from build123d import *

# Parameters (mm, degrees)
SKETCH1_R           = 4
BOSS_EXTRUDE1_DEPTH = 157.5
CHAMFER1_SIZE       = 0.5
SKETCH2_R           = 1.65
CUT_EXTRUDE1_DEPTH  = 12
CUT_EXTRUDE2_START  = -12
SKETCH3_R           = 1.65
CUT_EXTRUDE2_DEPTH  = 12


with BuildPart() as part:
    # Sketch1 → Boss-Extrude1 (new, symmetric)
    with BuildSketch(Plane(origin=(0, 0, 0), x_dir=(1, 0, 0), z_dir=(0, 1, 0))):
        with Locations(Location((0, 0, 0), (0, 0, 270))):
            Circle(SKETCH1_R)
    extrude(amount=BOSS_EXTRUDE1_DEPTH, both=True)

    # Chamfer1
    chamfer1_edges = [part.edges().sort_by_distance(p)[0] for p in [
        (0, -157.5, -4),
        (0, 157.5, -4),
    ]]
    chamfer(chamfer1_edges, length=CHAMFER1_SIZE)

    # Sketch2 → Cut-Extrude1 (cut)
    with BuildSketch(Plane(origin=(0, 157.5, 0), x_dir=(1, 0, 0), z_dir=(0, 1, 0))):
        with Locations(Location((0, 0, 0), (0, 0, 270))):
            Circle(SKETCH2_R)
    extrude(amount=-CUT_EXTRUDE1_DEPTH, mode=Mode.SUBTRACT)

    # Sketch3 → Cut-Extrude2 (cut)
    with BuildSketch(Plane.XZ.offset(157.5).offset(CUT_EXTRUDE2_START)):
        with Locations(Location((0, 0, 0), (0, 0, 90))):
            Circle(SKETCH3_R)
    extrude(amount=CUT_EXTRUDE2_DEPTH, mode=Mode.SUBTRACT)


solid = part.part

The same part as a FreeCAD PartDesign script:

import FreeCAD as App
import Part
import Sketcher

V = App.Vector


def edges_at(feature, points):
    """Names of the edges that pass closest to the given points."""
    edges = feature.Shape.Edges
    near = lambda p: min(range(len(edges)), key=lambda i: edges[i].distToShape(Part.Vertex(*p))[0])
    return sorted({f"Edge{near(p) + 1}" for p in points})

doc = App.newDocument("Part")
body = doc.addObject("PartDesign::Body", "Body")

# Sketch on XZ plane
sketch1 = body.newObject("Sketcher::SketchObject", "Sketch")
sketch1.AttachmentSupport = (doc.getObject("XZ_Plane"), [""])
sketch1.MapMode = "FlatFace"
sketch1.addGeometry(Part.Circle(V(0, 0, 0), V(0, 0, 1), 4), False)
sketch1.addConstraint([
    Sketcher.Constraint("Coincident", 0, 3, -1, 1),
    Sketcher.Constraint("Diameter", 0, 8.0),
])
pad1 = body.newObject("PartDesign::Pad", "Pad")
pad1.Profile = sketch1
pad1.Length = 315
pad1.Midplane = True
doc.recompute()

chamfer = body.newObject("PartDesign::Chamfer", "Chamfer")
chamfer.Base = (pad1, edges_at(pad1, [(0, -157.5, -4), (0, 157.5, -4)]))
chamfer.Size = 0.5

# Sketch on XZ plane
sketch2 = body.newObject("Sketcher::SketchObject", "Sketch001")
sketch2.AttachmentSupport = (doc.getObject("XZ_Plane"), [""])
sketch2.MapMode = "FlatFace"
sketch2.AttachmentOffset = App.Placement(V(0, 0, -157.5), App.Rotation())
sketch2.addGeometry(Part.Circle(V(0, 0, 0), V(0, 0, 1), 1.6), False)
sketch2.addConstraint([
    Sketcher.Constraint("Coincident", 0, 3, -1, 1),
    Sketcher.Constraint("Diameter", 0, 3.3),
])
pocket1 = body.newObject("PartDesign::Pocket", "Pocket")
pocket1.Profile = sketch2
pocket1.Length = 12
pocket1.Reversed = True

# Sketch on XZ plane
sketch3 = body.newObject("Sketcher::SketchObject", "Sketch002")
sketch3.AttachmentSupport = (doc.getObject("XZ_Plane"), [""])
sketch3.MapMode = "FlatFace"
sketch3.AttachmentOffset = App.Placement(V(0, 0, 145.5), App.Rotation())
sketch3.addGeometry(Part.Circle(V(0, 0, 0), V(0, 0, 1), 1.6), False)
sketch3.addConstraint([
    Sketcher.Constraint("Coincident", 0, 3, -1, 1),
    Sketcher.Constraint("Diameter", 0, 3.3),
])
pocket2 = body.newObject("PartDesign::Pocket", "Pocket001")
pocket2.Profile = sketch3
pocket2.Length = 12
pocket2.Reversed = True

doc.recompute()
